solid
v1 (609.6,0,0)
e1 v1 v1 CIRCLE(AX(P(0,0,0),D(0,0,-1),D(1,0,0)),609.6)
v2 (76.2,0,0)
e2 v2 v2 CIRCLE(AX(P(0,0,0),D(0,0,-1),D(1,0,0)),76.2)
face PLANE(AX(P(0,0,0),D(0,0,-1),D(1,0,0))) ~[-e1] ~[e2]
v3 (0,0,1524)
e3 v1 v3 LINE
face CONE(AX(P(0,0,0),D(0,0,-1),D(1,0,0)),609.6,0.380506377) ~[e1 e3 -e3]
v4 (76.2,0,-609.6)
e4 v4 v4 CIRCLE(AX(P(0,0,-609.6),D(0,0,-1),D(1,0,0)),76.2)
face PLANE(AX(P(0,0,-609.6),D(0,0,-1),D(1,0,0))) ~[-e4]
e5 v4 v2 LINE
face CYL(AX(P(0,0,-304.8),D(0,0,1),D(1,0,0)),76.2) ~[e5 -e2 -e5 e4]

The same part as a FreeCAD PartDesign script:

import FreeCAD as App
import Part
import Sketcher

V = App.Vector
Q = App.Units.Quantity


def add_polygon(sketch, points):
    """Adds a closed chain of lines whose ends are joined by coincident constraints."""
    first, n = sketch.GeometryCount, len(points)
    for a, b in zip(points, points[1:] + points[:1]):
        sketch.addGeometry(Part.LineSegment(App.Vector(*a, 0), App.Vector(*b, 0)), False)
    for i in range(n):
        sketch.addConstraint(Sketcher.Constraint("Coincident", first + i, 2, first + (i + 1) % n, 1))

doc = App.newDocument("Part")
body = doc.addObject("PartDesign::Body", "Body")

# Sketch on XZ plane
sketch1 = body.newObject("Sketcher::SketchObject", "Sketch")
sketch1.AttachmentSupport = (doc.getObject("XZ_Plane"), [""])
sketch1.MapMode = "FlatFace"
add_polygon(sketch1, [(0, 1524), (0, -609.6), (76.2, -609.6), (76.2, 0), (609.6, 0)])  # lines 0-4
sketch1.addConstraint([
    Sketcher.Constraint("Vertical", 0),
    Sketcher.Constraint("Horizontal", 1),
    Sketcher.Constraint("Vertical", 2),
    Sketcher.Constraint("Horizontal", 3),
    Sketcher.Constraint("PointOnObject", 0, 2, -2),
    Sketcher.Constraint("PointOnObject", 2, 2, -1),
    Sketcher.Constraint("DistanceX", 1, 1, 1, 2, Q("3 in")),
    Sketcher.Constraint("DistanceX", 3, 1, 3, 2, Q("21 in")),
    Sketcher.Constraint("DistanceY", 0, 2, 0, 1, Q("84 in")),
    Sketcher.Constraint("DistanceY", 2, 1, 2, 2, Q("24 in")),
])
revolution = body.newObject("PartDesign::Revolution", "Revolution")
revolution.Profile = sketch1
revolution.ReferenceAxis = (sketch1, ["V_Axis"])
revolution.Angle = 360

doc.recompute()
